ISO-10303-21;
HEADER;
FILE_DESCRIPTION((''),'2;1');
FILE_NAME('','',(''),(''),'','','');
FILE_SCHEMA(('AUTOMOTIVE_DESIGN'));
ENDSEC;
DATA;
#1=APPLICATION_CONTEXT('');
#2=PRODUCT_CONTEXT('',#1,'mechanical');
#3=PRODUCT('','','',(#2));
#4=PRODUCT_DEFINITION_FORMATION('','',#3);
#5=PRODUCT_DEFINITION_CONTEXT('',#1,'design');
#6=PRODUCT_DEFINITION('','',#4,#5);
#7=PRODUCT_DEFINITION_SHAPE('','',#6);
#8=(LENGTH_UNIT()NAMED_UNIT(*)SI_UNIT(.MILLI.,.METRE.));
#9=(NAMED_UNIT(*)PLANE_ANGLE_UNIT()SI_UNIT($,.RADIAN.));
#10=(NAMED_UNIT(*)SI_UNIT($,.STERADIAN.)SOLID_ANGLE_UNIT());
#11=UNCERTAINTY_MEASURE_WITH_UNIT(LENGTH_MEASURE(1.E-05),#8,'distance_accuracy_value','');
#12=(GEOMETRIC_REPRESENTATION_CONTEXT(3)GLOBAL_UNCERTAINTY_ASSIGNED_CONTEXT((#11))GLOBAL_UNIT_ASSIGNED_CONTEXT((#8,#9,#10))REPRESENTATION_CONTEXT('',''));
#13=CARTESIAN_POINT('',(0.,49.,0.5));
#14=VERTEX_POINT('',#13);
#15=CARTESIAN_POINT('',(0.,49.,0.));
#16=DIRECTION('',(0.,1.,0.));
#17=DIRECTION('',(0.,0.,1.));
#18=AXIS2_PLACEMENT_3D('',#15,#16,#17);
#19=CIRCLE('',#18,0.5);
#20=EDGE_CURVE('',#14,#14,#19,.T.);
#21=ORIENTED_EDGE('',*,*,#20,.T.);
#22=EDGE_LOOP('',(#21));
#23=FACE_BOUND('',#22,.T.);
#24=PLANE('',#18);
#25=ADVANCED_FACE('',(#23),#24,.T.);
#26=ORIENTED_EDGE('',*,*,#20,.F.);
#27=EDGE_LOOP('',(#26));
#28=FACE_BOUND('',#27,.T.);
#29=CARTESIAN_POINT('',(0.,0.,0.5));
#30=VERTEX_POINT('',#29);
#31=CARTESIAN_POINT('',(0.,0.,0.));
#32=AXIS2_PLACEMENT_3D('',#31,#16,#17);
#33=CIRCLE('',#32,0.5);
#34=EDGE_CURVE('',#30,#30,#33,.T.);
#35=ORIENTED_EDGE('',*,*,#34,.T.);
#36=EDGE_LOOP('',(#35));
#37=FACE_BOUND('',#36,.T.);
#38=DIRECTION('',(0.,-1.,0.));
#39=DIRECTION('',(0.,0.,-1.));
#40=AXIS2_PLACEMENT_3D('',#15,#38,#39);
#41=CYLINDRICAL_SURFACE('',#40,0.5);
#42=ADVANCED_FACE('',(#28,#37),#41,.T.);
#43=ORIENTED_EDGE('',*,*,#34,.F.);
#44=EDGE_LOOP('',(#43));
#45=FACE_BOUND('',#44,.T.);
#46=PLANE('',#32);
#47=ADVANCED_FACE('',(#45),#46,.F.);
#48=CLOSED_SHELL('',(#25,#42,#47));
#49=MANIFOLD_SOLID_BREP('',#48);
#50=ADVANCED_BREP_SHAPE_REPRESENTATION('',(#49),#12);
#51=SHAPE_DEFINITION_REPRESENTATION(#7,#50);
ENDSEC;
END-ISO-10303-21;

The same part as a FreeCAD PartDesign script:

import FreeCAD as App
import Part
import Sketcher

V = App.Vector

doc = App.newDocument("Part")
body = doc.addObject("PartDesign::Body", "Body")

sketch1 = doc.addObject("Sketcher::SketchObject", "Sketch")
body.addObject(sketch1)
sketch1.AttachmentSupport = (doc.XZ_Plane, [""])
sketch1.MapMode = "FlatFace"
sketch1.addGeometry(Part.Circle(V(0, 0, 0), V(0, 0, 1), 0.5), False)
sketch1.addConstraint(Sketcher.Constraint("Coincident", 0, 3, -1, 1))
sketch1.addConstraint(Sketcher.Constraint("Diameter", 0, 1.0))
pad1 = doc.addObject("PartDesign::Pad", "Pad")
body.addObject(pad1)
pad1.Profile = sketch1
pad1.Length = 49
pad1.Reversed = True

doc.recompute()
